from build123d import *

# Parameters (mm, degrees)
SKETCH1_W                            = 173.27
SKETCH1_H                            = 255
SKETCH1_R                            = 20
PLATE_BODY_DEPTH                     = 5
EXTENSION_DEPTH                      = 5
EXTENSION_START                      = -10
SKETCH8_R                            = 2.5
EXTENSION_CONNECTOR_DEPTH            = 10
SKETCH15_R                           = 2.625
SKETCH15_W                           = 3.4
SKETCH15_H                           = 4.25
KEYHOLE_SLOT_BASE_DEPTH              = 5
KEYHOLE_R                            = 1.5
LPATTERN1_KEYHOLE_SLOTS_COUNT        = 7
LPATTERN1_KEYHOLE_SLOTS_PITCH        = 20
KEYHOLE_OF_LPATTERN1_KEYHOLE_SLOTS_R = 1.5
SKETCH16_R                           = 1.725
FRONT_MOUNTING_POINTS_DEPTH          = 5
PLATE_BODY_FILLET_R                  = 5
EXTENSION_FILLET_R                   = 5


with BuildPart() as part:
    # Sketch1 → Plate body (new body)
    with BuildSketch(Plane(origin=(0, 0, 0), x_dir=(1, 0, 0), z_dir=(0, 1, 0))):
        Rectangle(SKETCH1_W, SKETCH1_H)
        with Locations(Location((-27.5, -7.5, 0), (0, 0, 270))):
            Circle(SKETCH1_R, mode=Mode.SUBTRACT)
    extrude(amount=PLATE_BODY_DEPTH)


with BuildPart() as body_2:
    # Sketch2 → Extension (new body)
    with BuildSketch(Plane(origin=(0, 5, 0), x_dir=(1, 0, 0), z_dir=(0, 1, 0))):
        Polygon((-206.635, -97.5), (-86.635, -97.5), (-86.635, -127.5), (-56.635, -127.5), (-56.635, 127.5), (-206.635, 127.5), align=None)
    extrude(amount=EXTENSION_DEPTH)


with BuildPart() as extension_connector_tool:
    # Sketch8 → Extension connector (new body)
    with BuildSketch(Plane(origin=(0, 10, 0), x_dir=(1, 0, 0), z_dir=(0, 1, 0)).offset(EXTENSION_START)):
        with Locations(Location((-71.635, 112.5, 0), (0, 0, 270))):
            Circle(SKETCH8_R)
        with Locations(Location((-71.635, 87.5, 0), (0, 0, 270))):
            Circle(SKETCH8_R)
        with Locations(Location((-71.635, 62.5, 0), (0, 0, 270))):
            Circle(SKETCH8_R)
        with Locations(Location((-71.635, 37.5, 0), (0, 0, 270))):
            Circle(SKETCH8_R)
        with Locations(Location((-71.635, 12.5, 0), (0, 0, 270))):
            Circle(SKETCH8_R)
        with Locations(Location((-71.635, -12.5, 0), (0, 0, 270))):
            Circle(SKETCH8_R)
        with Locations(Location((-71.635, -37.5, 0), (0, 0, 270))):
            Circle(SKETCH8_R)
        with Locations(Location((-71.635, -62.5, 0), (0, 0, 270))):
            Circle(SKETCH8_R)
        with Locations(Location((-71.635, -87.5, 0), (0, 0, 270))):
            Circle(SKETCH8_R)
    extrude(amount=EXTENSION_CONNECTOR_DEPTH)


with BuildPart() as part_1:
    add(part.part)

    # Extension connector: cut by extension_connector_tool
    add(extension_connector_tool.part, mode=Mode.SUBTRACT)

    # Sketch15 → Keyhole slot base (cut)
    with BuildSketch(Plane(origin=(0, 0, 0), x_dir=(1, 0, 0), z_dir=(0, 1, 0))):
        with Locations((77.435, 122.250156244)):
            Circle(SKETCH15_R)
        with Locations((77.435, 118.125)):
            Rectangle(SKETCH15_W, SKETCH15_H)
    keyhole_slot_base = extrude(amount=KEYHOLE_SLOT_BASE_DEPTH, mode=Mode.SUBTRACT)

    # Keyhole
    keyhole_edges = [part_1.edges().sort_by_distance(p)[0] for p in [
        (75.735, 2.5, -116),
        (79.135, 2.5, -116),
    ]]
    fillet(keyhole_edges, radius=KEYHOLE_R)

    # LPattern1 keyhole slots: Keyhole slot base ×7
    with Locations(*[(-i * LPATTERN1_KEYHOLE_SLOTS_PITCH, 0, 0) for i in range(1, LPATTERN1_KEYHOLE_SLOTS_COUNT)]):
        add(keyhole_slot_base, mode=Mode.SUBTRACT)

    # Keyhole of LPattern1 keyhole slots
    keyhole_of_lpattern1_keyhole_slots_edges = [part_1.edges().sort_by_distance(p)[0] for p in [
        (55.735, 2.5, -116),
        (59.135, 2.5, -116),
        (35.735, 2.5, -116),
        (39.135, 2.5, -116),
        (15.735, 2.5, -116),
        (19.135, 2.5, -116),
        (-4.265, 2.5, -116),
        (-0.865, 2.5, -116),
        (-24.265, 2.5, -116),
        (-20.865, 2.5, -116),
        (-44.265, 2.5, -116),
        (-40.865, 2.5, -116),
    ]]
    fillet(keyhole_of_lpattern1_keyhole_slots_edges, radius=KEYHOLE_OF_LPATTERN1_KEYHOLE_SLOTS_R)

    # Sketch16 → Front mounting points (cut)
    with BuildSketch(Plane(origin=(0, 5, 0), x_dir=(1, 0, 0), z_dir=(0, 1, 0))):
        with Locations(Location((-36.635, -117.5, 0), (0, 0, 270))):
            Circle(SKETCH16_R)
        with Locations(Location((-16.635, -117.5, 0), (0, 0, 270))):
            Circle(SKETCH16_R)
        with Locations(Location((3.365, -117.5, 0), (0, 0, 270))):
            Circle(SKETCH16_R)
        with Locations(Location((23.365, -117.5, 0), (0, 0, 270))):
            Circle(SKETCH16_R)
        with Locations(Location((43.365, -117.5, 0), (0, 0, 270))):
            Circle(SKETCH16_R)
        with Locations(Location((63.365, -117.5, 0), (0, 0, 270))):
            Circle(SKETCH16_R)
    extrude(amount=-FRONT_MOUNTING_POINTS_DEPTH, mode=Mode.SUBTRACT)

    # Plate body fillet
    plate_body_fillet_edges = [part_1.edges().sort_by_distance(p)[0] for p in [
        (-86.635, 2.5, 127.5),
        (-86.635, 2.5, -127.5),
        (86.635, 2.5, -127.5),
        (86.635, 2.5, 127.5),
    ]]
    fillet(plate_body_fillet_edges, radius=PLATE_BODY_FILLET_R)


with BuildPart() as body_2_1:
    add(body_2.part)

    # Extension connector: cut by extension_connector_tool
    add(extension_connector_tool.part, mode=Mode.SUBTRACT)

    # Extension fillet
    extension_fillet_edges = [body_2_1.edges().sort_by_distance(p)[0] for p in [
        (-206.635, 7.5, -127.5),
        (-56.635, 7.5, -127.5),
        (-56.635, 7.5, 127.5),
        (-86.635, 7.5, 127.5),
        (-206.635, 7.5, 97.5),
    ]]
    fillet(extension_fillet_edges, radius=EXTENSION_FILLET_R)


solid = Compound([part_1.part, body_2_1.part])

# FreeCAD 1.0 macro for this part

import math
import FreeCAD as App
import Part
import Sketcher

V = App.Vector
Q = App.Units.Quantity


def edges_at(feature, points):
    """Names of the edges that pass closest to the given points."""
    edges = feature.Shape.Edges
    near = lambda p: min(range(len(edges)), key=lambda i: edges[i].distToShape(Part.Vertex(*p))[0])
    return sorted({f"Edge{near(p) + 1}" for p in points})

doc = App.newDocument("Part")
body = doc.addObject("PartDesign::Body", "Body")

# Sketch on XZ plane
sketch1 = body.newObject("Sketcher::SketchObject", "Sketch")
sketch1.AttachmentSupport = (doc.getObject("XZ_Plane"), [""])
sketch1.MapMode = "FlatFace"
sketch1.addGeometry([
    Part.LineSegment(V(-87, -128, 0), V(-87, 128, 0)),  # 0
    Part.LineSegment(V(-87, 128, 0), V(87, 128, 0)),  # 1
    Part.LineSegment(V(87, 128, 0), V(87, -128, 0)),  # 2
    Part.LineSegment(V(87, -128, 0), V(-87, -128, 0)),  # 3
    Part.Circle(V(-28, 8, 0), V(0, 0, 1), 20),  # 4
], False)
sketch1.addConstraint([
    Sketcher.Constraint("Coincident", 0, 2, 1, 1),
    Sketcher.Constraint("Coincident", 1, 2, 2, 1),
    Sketcher.Constraint("Coincident", 2, 2, 3, 1),
    Sketcher.Constraint("Coincident", 3, 2, 0, 1),
    Sketcher.Constraint("Vertical", 0),
    Sketcher.Constraint("Horizontal", 1),
    Sketcher.Constraint("Vertical", 2),
    Sketcher.Constraint("Horizontal", 3),
    Sketcher.Constraint("Symmetric", 0, 2, 2, 2, -1, 1),
    Sketcher.Constraint("Diameter", 4, Q("40 mm")),
    Sketcher.Constraint("DistanceY", 0, 1, 0, 2, Q("255 mm")),
    Sketcher.Constraint("DistanceY", 4, 3, 0, 2, Q("120 mm")),
    Sketcher.Constraint("DistanceX", 1, 1, 1, 2, Q("173.27 mm")),
    Sketcher.Constraint("DistanceX", 4, 3, -1, 1, Q("27.5 mm")),
])
pad1 = body.newObject("PartDesign::Pad", "Pad")
pad1.Profile = sketch1
pad1.Length = 5
pad1.Reversed = True
body2 = doc.addObject("PartDesign::Body", "Body001")

# Sketch on XZ plane
sketch2 = body2.newObject("Sketcher::SketchObject", "Sketch001")
sketch2.AttachmentSupport = (doc.getObject("XZ_Plane001"), [""])
sketch2.MapMode = "FlatFace"
sketch2.AttachmentOffset = App.Placement(V(0, 0, -5), App.Rotation())
sketch2.addGeometry([
    Part.LineSegment(V(-207, 98, 0), V(-87, 98, 0)),  # 0
    Part.LineSegment(V(-87, 98, 0), V(-87, 128, 0)),  # 1
    Part.LineSegment(V(-87, 128, 0), V(-57, 128, 0)),  # 2
    Part.LineSegment(V(-57, 128, 0), V(-57, -128, 0)),  # 3
    Part.LineSegment(V(-57, -128, 0), V(-207, -128, 0)),  # 4
    Part.LineSegment(V(-207, -128, 0), V(-207, 98, 0)),  # 5
], False)
sketch2.addConstraint([
    Sketcher.Constraint("Coincident", 0, 2, 1, 1),
    Sketcher.Constraint("Coincident", 1, 2, 2, 1),
    Sketcher.Constraint("Coincident", 2, 2, 3, 1),
    Sketcher.Constraint("Coincident", 3, 2, 4, 1),
    Sketcher.Constraint("Coincident", 4, 2, 5, 1),
    Sketcher.Constraint("Coincident", 5, 2, 0, 1),
    Sketcher.Constraint("Horizontal", 0),
    Sketcher.Constraint("Vertical", 1),
    Sketcher.Constraint("Horizontal", 2),
    Sketcher.Constraint("Vertical", 3),
    Sketcher.Constraint("Horizontal", 4),
    Sketcher.Constraint("Vertical", 5),
    Sketcher.Constraint("Equal", 2, 1),
    Sketcher.Constraint("DistanceX", 0, 1, 0, 2, Q("120 mm")),
    Sketcher.Constraint("DistanceX", 2, 1, 2, 2, Q("30 mm")),
    Sketcher.Constraint("DistanceY", 3, 2, 3, 1, Q("255 mm")),
    Sketcher.Constraint("DistanceY", -1, 1, 0, 2, Q("97.5 mm")),
    Sketcher.Constraint("DistanceX", 0, 2, -1, 1, Q("86.635 mm")),
])
pad2 = body2.newObject("PartDesign::Pad", "Pad001")
pad2.Profile = sketch2
pad2.Length = 5
pad2.Reversed = True
body3 = doc.addObject("PartDesign::Body", "Body002")
body3.AllowCompound = True

# Sketch on XZ plane
sketch3 = body3.newObject("Sketcher::SketchObject", "Sketch002")
sketch3.AttachmentSupport = (doc.getObject("XZ_Plane002"), [""])
sketch3.MapMode = "FlatFace"
sketch3.addGeometry([
    Part.Circle(V(-71.6, -112.5, 0), V(0, 0, 1), 2.5),  # 0
    Part.Circle(V(-71.6, -87.5, 0), V(0, 0, 1), 2.5),  # 1
    Part.Circle(V(-71.6, -62.5, 0), V(0, 0, 1), 2.5),  # 2
    Part.Circle(V(-71.6, -37.5, 0), V(0, 0, 1), 2.5),  # 3
    Part.Circle(V(-71.6, -12.5, 0), V(0, 0, 1), 2.5),  # 4
    Part.Circle(V(-71.6, 12.5, 0), V(0, 0, 1), 2.5),  # 5
    Part.Circle(V(-71.6, 37.5, 0), V(0, 0, 1), 2.5),  # 6
    Part.Circle(V(-71.6, 62.5, 0), V(0, 0, 1), 2.5),  # 7
    Part.Circle(V(-71.6, 87.5, 0), V(0, 0, 1), 2.5),  # 8
], False)
sketch3.addConstraint([
    Sketcher.Constraint("Equal", 0, 1),
    Sketcher.Constraint("Equal", 1, 2),
    Sketcher.Constraint("Equal", 2, 3),
    Sketcher.Constraint("Equal", 3, 4),
    Sketcher.Constraint("Equal", 4, 5),
    Sketcher.Constraint("Equal", 5, 6),
    Sketcher.Constraint("Equal", 6, 7),
    Sketcher.Constraint("Equal", 7, 8),
    Sketcher.Constraint("Symmetric", 4, 3, 5, 3, -1),
    Sketcher.Constraint("Symmetric", 3, 3, 6, 3, -1),
    Sketcher.Constraint("Symmetric", 2, 3, 7, 3, -1),
    Sketcher.Constraint("Symmetric", 1, 3, 8, 3, -1),
    Sketcher.Constraint("Vertical", 0, 3, 1, 3),
    Sketcher.Constraint("Vertical", 1, 3, 2, 3),
    Sketcher.Constraint("Vertical", 2, 3, 3, 3),
    Sketcher.Constraint("Vertical", 3, 3, 4, 3),
    Sketcher.Constraint("Diameter", 0, Q("5 mm")),
    Sketcher.Constraint("DistanceY", 0, 3, 1, 3, Q("25 mm")),
    Sketcher.Constraint("DistanceY", 1, 3, 2, 3, Q("25 mm")),
    Sketcher.Constraint("DistanceY", 2, 3, 3, 3, Q("25 mm")),
    Sketcher.Constraint("DistanceY", 3, 3, 4, 3, Q("25 mm")),
    Sketcher.Constraint("DistanceY", 4, 3, 5, 3, Q("25 mm")),
    Sketcher.Constraint("DistanceX", 0, 3, -1, 1, Q("71.635 mm")),
])
pad3 = body3.newObject("PartDesign::Pad", "Pad002")
pad3.Profile = sketch3
pad3.Length = 10
pad3.Reversed = True
doc.recompute()

body4 = doc.addObject("PartDesign::Body", "Body003")
body4.BaseFeature = body3
boolean = body.newObject("PartDesign::Boolean", "Boolean")
boolean.Type = "Cut"
boolean.addObjects([body4])
doc.recompute()

# Sketch on XZ plane
sketch4 = body.newObject("Sketcher::SketchObject", "Sketch003")
sketch4.AttachmentSupport = (doc.getObject("XZ_Plane"), [""])
sketch4.MapMode = "FlatFace"
sketch4.addGeometry([
    Part.ArcOfCircle(Part.Circle(V(77.4, -122.3, 0), V(0, 0, 1), 2.6), math.radians(130), math.radians(410)),
    Part.LineSegment(V(75.7, -120.2, 0), V(75.7, -116, 0)),
    Part.LineSegment(V(75.7, -116, 0), V(79.1, -116, 0)),
    Part.LineSegment(V(79.1, -116, 0), V(79.1, -120.2, 0)),
], False)
sketch4.addConstraint([
    Sketcher.Constraint("Coincident", 0, 1, 1, 1),
    Sketcher.Constraint("Coincident", 1, 2, 2, 1),
    Sketcher.Constraint("Coincident", 2, 2, 3, 1),
    Sketcher.Constraint("Coincident", 3, 2, 0, 2),
    Sketcher.Constraint("Vertical", 1),
    Sketcher.Constraint("Horizontal", 2),
    Sketcher.Constraint("Vertical", 3),
    Sketcher.Constraint("Horizontal", 0, 1, 3, 2),
    Sketcher.Constraint("DistanceX", 2, 1, 2, 2, Q("3.4 mm")),
    Sketcher.Constraint("DistanceY", 1, 2, -1, 1, Q("116 mm")),
    Sketcher.Constraint("Radius", 0, Q("2.625 mm")),
    Sketcher.Constraint("DistanceY", 1, 1, 1, 2, Q("4.25 mm")),
    Sketcher.Constraint("DistanceX", -1, 1, 0, 3, Q("77.435 mm")),
])
pocket1 = body.newObject("PartDesign::Pocket", "Pocket")
pocket1.Profile = sketch4
pocket1.Length = 5
doc.recompute()

fillet = body.newObject("PartDesign::Fillet", "Fillet")
fillet.Base = (pocket1, edges_at(pocket1, [(75.735, 2.5, -116), (79.135, 2.5, -116)]))
fillet.Radius = 1.5
doc.recompute()

linearpattern = body.newObject("PartDesign::LinearPattern", "LinearPattern")
linearpattern.Originals = [pocket1]
linearpattern.Direction = (doc.getObject("X_Axis"), [""])
linearpattern.Mode = "offset"
linearpattern.Offset = 20
linearpattern.Occurrences = 7
linearpattern.Reversed = True
body.Tip = linearpattern
doc.recompute()

fillet2 = body.newObject("PartDesign::Fillet", "Fillet001")
fillet2.Base = (linearpattern, edges_at(linearpattern, [
    (55.735, 2.5, -116),
    (59.135, 2.5, -116),
    (35.735, 2.5, -116),
    (39.135, 2.5, -116),
    (15.735, 2.5, -116),
    (19.135, 2.5, -116),
    (-4.265, 2.5, -116),
    (-0.865, 2.5, -116),
    (-24.265, 2.5, -116),
    (-20.865, 2.5, -116),
    (-44.265, 2.5, -116),
    (-40.865, 2.5, -116),
]))
fillet2.Radius = 1.5

# Sketch on XZ plane
sketch5 = body.newObject("Sketcher::SketchObject", "Sketch004")
sketch5.AttachmentSupport = (doc.getObject("XZ_Plane"), [""])
sketch5.MapMode = "FlatFace"
sketch5.AttachmentOffset = App.Placement(V(0, 0, -5), App.Rotation())
sketch5.addGeometry([
    Part.Circle(V(-36.6, 117.5, 0), V(0, 0, 1), 1.7),  # 0
    Part.Circle(V(-16.6, 117.5, 0), V(0, 0, 1), 1.7),  # 1
    Part.Circle(V(3.4, 117.5, 0), V(0, 0, 1), 1.7),  # 2
    Part.Circle(V(23.4, 117.5, 0), V(0, 0, 1), 1.7),  # 3
    Part.Circle(V(43.4, 117.5, 0), V(0, 0, 1), 1.7),  # 4
    Part.Circle(V(63.4, 117.5, 0), V(0, 0, 1), 1.7),  # 5
], False)
sketch5.addConstraint([
    Sketcher.Constraint("Equal", 0, 1),
    Sketcher.Constraint("Equal", 1, 2),
    Sketcher.Constraint("Equal", 2, 3),
    Sketcher.Constraint("Equal", 3, 4),
    Sketcher.Constraint("Equal", 4, 5),
    Sketcher.Constraint("Horizontal", 0, 3, 1, 3),
    Sketcher.Constraint("Horizontal", 1, 3, 2, 3),
    Sketcher.Constraint("Horizontal", 2, 3, 3, 3),
    Sketcher.Constraint("Horizontal", 3, 3, 4, 3),
    Sketcher.Constraint("Horizontal", 4, 3, 5, 3),
    Sketcher.Constraint("Diameter", 0, Q("3.45 mm")),
    Sketcher.Constraint("DistanceX", 0, 3, 1, 3, Q("20 mm")),
    Sketcher.Constraint("DistanceX", 1, 3, 2, 3, Q("20 mm")),
    Sketcher.Constraint("DistanceX", 2, 3, 3, 3, Q("20 mm")),
    Sketcher.Constraint("DistanceX", 3, 3, 4, 3, Q("20 mm")),
    Sketcher.Constraint("DistanceX", 4, 3, 5, 3, Q("20 mm")),
    Sketcher.Constraint("DistanceY", -1, 1, 0, 3, Q("117.5 mm")),
    Sketcher.Constraint("DistanceX", 0, 3, -1, 1, Q("36.635 mm")),
])
pocket2 = body.newObject("PartDesign::Pocket", "Pocket001")
pocket2.Profile = sketch5
pocket2.Length = 5
pocket2.Reversed = True
doc.recompute()

fillet3 = body.newObject("PartDesign::Fillet", "Fillet002")
fillet3.Base = (pocket2, edges_at(pocket2, [
    (-86.635, 2.5, 127.5),
    (-86.635, 2.5, -127.5),
    (86.635, 2.5, -127.5),
    (86.635, 2.5, 127.5),
]))
fillet3.Radius = 5
doc.recompute()

boolean2 = body2.newObject("PartDesign::Boolean", "Boolean001")
boolean2.Type = "Cut"
boolean2.addObjects([body3])
doc.recompute()

fillet4 = body2.newObject("PartDesign::Fillet", "Fillet003")
fillet4.Base = (boolean2, edges_at(boolean2, [
    (-206.635, 7.5, -127.5),
    (-56.635, 7.5, -127.5),
    (-56.635, 7.5, 127.5),
    (-86.635, 7.5, 127.5),
    (-206.635, 7.5, 97.5),
]))
fillet4.Radius = 5

doc.recompute()
